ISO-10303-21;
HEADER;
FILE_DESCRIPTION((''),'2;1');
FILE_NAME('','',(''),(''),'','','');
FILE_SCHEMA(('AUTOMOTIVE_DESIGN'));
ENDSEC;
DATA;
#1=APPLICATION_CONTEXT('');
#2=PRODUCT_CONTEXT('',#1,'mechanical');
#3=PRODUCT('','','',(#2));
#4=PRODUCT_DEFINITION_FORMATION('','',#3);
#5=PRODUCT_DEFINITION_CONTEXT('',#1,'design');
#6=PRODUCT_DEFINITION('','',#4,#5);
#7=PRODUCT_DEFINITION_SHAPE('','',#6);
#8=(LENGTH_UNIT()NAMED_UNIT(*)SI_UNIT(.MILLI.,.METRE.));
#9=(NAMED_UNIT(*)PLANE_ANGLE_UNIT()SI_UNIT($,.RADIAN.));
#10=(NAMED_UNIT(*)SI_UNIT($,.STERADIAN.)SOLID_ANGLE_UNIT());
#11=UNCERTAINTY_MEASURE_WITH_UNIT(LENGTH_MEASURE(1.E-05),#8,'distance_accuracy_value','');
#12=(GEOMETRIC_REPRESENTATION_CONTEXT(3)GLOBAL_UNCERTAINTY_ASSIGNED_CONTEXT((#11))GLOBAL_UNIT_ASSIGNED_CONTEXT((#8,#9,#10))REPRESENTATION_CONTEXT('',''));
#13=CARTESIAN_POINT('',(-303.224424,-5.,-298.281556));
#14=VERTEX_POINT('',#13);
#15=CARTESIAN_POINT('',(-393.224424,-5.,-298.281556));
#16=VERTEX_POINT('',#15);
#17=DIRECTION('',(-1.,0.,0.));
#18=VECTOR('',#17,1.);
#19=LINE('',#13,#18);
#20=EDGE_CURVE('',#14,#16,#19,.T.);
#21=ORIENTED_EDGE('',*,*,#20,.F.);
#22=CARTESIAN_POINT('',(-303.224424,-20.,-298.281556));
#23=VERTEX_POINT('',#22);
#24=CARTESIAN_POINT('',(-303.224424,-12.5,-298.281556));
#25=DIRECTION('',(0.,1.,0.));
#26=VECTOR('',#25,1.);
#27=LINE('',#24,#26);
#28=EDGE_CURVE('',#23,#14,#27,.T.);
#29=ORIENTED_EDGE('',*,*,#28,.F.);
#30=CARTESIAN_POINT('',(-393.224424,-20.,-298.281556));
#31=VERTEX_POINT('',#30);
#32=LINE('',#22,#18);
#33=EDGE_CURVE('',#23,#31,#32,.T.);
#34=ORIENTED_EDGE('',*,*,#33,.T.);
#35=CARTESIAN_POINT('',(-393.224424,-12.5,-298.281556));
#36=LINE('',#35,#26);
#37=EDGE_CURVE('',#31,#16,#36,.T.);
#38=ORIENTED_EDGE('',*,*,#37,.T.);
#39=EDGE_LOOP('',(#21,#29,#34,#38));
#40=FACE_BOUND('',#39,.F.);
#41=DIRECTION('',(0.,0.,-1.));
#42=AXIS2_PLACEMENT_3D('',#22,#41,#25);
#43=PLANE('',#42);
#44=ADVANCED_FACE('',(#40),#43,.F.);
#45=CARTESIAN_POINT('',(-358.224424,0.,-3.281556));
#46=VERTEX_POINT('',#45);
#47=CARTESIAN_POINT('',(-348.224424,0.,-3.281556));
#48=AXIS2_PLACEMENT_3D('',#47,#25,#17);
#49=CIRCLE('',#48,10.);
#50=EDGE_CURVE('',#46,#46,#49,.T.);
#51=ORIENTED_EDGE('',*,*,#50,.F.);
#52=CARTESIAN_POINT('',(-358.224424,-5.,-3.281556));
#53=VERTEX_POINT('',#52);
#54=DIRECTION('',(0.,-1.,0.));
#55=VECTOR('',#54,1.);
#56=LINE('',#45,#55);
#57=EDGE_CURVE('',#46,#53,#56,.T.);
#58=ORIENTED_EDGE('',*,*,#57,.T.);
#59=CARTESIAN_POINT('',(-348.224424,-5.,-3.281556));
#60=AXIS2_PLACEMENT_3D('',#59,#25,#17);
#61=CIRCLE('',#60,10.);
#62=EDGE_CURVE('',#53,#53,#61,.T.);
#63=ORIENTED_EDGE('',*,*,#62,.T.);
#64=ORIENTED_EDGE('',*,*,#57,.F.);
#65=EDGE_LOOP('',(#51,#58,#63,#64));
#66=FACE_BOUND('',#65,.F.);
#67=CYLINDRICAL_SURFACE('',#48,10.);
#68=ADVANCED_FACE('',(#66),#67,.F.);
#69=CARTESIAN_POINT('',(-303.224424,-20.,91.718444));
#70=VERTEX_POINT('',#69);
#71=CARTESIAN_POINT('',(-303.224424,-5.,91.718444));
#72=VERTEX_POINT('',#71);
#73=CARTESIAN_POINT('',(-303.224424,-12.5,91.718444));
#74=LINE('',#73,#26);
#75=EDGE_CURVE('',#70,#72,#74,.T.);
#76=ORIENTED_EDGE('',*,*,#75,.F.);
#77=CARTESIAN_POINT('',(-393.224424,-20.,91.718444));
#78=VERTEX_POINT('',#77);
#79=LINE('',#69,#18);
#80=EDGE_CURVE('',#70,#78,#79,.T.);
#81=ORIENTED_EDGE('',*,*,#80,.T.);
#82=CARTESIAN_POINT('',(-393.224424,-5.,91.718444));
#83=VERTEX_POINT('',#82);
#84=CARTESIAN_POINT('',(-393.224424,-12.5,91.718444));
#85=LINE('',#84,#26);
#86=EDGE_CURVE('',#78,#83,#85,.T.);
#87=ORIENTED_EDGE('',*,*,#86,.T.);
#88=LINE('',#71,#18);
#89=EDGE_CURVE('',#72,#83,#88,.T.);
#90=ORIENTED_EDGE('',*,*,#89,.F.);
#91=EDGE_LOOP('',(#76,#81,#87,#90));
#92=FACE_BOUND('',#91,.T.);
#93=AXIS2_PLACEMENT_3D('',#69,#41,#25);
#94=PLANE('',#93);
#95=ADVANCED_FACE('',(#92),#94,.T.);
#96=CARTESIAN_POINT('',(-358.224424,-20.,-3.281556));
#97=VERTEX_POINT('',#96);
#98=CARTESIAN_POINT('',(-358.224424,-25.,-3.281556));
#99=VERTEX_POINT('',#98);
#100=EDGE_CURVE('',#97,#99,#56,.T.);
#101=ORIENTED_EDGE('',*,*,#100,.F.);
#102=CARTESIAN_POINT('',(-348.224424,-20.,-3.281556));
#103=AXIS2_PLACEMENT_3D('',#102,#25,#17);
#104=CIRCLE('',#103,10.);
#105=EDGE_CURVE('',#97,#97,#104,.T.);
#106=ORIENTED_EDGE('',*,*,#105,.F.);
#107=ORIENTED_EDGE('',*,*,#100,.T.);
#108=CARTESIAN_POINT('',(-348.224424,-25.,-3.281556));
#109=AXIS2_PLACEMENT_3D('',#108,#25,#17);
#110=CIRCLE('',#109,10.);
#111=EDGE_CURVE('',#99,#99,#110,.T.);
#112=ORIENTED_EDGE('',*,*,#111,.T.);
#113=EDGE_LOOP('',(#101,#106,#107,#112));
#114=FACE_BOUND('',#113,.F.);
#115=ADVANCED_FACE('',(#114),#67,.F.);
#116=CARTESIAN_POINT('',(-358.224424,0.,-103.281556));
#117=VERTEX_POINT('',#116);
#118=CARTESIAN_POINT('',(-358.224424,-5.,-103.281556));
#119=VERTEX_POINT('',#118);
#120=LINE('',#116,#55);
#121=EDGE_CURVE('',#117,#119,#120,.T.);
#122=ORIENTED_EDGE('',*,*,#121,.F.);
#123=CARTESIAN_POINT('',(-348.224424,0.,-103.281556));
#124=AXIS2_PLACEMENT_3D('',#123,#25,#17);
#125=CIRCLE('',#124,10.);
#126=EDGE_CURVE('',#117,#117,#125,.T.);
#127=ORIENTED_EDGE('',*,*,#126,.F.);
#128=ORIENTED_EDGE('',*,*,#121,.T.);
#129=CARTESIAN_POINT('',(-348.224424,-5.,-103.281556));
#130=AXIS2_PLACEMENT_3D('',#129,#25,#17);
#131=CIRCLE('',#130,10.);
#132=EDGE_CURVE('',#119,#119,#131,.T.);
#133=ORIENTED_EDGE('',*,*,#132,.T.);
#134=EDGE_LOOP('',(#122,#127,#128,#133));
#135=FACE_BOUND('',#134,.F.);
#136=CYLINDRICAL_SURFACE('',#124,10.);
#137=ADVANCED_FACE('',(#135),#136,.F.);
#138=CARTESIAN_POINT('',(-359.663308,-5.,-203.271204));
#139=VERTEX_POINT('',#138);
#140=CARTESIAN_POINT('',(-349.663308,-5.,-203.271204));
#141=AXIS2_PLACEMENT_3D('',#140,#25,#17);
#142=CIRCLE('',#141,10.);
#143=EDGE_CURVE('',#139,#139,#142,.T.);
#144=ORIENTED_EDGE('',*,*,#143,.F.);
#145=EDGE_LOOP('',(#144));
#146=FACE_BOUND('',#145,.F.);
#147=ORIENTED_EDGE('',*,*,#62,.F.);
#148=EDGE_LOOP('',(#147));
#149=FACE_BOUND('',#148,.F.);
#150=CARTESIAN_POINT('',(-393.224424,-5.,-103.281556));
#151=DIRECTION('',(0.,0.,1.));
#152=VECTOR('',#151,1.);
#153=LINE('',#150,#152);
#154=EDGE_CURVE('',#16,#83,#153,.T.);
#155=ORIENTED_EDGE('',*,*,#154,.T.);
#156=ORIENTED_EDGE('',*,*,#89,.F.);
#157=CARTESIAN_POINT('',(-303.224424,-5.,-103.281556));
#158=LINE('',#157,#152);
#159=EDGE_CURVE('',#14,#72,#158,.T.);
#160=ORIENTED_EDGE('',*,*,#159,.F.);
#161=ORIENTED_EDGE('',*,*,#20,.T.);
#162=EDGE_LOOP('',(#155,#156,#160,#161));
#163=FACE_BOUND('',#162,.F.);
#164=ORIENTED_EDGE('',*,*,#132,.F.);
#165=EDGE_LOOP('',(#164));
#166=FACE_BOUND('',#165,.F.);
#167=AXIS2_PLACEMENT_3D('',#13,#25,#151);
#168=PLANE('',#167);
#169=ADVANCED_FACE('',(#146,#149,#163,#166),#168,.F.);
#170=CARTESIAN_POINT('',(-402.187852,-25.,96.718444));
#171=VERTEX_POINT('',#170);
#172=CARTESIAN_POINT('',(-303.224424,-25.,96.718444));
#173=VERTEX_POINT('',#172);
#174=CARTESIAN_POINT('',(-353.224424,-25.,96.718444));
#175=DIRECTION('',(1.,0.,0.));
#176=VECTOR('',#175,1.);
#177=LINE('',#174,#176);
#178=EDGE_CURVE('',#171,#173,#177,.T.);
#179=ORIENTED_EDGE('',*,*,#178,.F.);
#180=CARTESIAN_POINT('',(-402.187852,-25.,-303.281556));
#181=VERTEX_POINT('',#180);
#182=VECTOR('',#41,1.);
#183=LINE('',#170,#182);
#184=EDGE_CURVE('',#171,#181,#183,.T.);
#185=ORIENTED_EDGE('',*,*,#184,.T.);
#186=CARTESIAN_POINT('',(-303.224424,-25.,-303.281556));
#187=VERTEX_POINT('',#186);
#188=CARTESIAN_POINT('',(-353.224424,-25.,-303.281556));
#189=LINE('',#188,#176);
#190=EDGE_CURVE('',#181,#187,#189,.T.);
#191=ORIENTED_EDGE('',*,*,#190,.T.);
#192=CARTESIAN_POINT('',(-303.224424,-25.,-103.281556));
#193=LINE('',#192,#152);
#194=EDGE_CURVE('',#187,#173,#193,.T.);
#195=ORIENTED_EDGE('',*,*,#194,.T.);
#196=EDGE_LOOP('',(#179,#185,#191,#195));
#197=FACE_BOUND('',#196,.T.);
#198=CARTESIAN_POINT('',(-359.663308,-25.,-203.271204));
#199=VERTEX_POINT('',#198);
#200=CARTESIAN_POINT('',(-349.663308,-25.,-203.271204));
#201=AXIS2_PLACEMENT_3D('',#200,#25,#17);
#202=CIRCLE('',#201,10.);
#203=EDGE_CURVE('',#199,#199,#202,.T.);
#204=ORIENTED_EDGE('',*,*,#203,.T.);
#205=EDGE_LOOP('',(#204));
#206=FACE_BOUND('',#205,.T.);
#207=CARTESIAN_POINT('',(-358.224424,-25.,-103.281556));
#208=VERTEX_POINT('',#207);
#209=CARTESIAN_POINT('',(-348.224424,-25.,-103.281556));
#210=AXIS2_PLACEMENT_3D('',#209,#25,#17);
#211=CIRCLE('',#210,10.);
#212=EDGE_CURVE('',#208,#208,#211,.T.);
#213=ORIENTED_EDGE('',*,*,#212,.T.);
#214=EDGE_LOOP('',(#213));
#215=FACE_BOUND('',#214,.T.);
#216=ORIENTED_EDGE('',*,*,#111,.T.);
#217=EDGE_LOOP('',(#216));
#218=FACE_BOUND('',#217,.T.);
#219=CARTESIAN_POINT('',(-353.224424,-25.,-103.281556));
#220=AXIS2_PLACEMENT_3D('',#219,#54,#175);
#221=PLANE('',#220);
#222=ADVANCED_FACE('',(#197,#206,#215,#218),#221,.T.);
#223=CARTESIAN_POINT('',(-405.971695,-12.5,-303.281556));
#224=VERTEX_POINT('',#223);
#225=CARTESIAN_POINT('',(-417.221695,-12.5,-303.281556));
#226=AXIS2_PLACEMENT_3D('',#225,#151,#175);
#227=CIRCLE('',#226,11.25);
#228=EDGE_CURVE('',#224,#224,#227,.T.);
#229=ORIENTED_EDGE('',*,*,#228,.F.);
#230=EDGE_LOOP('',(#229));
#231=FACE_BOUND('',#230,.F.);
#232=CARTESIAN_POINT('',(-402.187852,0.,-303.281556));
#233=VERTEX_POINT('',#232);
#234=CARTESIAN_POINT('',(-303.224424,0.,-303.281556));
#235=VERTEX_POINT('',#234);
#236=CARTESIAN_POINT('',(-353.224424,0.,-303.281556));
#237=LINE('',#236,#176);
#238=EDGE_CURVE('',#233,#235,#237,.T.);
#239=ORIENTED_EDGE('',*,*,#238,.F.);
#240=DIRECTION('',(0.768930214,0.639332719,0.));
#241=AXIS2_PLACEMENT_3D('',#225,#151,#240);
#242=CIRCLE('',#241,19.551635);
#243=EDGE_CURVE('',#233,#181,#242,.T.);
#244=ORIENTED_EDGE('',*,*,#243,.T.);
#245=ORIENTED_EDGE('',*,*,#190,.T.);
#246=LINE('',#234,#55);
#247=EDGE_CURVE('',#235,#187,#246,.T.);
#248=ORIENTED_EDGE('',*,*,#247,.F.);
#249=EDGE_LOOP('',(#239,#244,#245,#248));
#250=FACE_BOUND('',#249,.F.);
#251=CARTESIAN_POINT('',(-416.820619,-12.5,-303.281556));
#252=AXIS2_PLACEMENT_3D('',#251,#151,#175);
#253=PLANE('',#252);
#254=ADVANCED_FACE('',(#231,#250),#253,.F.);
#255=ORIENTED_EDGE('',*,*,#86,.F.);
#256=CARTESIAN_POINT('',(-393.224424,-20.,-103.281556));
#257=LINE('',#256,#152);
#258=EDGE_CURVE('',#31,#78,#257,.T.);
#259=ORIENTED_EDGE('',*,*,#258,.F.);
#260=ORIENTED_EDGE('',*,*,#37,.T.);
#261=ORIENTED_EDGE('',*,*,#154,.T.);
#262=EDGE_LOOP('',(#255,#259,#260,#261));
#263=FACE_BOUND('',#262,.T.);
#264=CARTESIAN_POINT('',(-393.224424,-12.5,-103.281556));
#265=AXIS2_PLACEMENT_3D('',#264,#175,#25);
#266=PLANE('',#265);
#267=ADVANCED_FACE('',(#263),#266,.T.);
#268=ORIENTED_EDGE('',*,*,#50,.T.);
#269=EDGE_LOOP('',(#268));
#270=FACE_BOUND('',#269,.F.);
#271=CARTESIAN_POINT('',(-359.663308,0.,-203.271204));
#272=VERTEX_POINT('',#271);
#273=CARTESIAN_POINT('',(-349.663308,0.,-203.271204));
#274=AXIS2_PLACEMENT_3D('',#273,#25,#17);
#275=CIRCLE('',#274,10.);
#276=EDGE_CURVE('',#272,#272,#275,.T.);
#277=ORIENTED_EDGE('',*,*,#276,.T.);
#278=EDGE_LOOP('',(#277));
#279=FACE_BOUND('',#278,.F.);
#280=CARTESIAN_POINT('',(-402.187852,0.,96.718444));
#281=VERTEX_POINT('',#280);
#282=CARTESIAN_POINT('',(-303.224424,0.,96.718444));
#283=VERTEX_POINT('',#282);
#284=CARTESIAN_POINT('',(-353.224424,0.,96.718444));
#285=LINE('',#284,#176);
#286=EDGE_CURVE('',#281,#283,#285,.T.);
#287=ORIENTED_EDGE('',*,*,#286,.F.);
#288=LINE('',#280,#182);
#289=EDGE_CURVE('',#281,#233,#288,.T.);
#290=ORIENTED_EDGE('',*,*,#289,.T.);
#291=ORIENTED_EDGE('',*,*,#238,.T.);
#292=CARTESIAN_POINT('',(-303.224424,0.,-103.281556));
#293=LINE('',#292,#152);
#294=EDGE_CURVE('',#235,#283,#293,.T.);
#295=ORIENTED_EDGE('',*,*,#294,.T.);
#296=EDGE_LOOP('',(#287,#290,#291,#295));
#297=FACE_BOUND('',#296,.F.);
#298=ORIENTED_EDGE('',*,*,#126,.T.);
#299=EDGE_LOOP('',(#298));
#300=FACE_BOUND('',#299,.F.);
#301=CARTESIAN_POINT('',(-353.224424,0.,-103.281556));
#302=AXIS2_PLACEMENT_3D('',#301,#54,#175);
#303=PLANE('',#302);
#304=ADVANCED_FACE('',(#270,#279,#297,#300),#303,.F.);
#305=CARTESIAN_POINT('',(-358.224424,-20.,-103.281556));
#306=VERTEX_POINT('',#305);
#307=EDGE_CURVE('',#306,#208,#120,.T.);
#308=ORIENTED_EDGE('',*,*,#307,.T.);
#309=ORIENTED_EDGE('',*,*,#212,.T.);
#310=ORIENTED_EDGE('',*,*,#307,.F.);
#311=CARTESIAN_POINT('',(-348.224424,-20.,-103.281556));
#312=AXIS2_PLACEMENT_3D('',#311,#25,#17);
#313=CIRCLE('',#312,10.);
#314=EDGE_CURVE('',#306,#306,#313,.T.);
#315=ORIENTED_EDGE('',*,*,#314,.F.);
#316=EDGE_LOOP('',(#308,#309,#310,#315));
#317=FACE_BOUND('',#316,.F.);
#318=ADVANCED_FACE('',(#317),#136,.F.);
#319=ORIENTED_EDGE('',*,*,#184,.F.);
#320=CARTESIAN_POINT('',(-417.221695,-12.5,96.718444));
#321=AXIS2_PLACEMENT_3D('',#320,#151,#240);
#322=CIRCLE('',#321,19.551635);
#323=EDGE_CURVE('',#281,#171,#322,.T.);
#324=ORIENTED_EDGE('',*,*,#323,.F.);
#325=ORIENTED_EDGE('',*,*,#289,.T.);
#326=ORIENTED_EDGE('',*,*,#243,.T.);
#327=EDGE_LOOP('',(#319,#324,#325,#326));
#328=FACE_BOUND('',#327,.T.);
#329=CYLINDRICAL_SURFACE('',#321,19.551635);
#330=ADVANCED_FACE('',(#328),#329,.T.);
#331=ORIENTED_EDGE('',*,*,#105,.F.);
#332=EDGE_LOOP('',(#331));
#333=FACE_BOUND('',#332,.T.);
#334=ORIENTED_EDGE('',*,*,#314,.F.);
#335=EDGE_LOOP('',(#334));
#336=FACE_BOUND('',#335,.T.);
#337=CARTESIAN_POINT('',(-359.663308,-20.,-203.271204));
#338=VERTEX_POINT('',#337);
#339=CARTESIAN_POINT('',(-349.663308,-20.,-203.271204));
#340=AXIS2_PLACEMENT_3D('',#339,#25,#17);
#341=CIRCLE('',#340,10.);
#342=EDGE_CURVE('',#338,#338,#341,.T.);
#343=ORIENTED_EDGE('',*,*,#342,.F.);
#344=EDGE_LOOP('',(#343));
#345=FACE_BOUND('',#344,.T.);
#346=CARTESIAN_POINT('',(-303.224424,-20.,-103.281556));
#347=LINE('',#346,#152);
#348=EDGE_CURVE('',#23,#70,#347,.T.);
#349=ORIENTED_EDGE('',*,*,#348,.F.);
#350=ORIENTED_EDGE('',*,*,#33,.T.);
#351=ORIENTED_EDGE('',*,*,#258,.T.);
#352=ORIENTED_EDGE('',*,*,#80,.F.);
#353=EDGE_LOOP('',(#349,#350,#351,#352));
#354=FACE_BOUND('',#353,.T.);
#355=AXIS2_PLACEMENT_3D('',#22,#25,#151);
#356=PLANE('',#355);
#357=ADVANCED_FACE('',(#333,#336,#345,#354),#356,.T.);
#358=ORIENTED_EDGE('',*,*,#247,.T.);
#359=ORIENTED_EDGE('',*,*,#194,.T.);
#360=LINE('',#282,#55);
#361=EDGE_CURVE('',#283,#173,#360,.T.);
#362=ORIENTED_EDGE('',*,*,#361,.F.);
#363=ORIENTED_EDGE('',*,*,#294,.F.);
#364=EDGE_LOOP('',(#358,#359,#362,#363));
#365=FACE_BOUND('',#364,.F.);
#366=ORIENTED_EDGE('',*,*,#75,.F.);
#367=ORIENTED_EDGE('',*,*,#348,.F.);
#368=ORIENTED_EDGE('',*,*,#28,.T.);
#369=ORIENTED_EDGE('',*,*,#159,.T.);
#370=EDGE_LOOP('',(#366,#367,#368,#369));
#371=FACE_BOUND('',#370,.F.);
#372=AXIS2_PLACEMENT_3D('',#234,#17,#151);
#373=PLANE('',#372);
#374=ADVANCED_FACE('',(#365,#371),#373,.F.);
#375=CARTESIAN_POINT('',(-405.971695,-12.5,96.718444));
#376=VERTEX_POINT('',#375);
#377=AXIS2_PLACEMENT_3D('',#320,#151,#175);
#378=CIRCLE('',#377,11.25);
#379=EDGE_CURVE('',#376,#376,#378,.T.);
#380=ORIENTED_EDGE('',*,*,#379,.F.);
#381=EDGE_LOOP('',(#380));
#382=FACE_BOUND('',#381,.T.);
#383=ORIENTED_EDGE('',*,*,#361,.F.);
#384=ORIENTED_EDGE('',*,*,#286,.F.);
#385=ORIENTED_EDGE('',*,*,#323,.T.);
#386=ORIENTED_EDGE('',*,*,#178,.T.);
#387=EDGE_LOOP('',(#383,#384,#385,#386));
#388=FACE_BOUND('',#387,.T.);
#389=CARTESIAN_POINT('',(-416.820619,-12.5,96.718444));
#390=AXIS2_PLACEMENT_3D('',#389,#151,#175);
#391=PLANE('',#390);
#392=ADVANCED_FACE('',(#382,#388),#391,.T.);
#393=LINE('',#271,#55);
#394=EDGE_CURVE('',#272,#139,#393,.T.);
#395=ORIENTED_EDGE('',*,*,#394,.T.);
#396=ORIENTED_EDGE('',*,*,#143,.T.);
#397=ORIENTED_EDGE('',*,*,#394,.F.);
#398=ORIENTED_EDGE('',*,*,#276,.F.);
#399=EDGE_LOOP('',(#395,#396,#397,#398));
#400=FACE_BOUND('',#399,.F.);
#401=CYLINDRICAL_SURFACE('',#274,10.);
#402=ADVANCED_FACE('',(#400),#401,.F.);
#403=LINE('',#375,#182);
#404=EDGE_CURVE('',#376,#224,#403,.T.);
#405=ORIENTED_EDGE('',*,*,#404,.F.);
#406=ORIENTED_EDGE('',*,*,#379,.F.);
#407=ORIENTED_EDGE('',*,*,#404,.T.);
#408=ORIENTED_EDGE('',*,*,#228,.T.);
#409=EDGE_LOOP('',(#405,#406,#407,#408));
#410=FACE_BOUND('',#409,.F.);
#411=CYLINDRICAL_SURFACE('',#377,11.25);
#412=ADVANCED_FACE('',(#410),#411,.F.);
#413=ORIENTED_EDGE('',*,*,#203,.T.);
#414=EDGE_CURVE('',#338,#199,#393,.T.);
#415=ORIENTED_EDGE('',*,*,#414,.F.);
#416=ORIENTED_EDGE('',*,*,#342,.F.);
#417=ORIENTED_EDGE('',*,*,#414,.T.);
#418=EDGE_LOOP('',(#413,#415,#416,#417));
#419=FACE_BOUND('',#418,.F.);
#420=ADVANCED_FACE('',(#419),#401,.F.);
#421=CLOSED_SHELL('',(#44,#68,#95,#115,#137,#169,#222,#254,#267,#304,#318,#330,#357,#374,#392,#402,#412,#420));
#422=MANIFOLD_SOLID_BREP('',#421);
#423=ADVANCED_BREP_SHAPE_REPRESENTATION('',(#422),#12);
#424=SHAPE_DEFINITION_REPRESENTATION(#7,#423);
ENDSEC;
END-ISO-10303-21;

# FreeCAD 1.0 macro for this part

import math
import FreeCAD as App
import Part
import Sketcher

doc = App.newDocument("Part")
body = doc.addObject("PartDesign::Body", "Body")

# Sketch on XZ plane
sketch1 = body.newObject("Sketcher::SketchObject", "Sketch")
sketch1.AttachmentSupport = (doc.getObject("XZ_Plane"), [""])
sketch1.MapMode = "FlatFace"
sketch1.addGeometry(Part.LineSegment(App.Vector(-403, 97, 0), App.Vector(-403, -303, 0)), False)
sketch1.addGeometry(Part.LineSegment(App.Vector(-403, -303, 0), App.Vector(-303, -303, 0)), False)
sketch1.addGeometry(Part.LineSegment(App.Vector(-303, -303, 0), App.Vector(-303, 97, 0)), False)
sketch1.addGeometry(Part.LineSegment(App.Vector(-303, 97, 0), App.Vector(-403, 97, 0)), False)
sketch1.addConstraint(Sketcher.Constraint("Coincident", 0, 2, 1, 1))
sketch1.addConstraint(Sketcher.Constraint("Coincident", 1, 2, 2, 1))
sketch1.addConstraint(Sketcher.Constraint("Coincident", 2, 2, 3, 1))
sketch1.addConstraint(Sketcher.Constraint("Coincident", 3, 2, 0, 1))
sketch1.addConstraint(Sketcher.Constraint("Vertical", 0))
sketch1.addConstraint(Sketcher.Constraint("Horizontal", 1))
sketch1.addConstraint(Sketcher.Constraint("Vertical", 2))
sketch1.addConstraint(Sketcher.Constraint("Horizontal", 3))
sketch1.addConstraint(Sketcher.Constraint("DistanceX", 1, 1, 1, 2, 100.0))
sketch1.addConstraint(Sketcher.Constraint("DistanceY", 0, 2, 0, 1, 400.0))
sketch1.addConstraint(Sketcher.Constraint("DistanceX", 0, 2, -1, 1, 403.224424))
sketch1.addConstraint(Sketcher.Constraint("DistanceY", 0, 2, -1, 1, 303.281556))
pad1 = body.newObject("PartDesign::Pad", "Pad")
pad1.Profile = sketch1
pad1.Length = 25

# Sketch on YZ plane
sketch2 = body.newObject("Sketcher::SketchObject", "Sketch001")
sketch2.AttachmentSupport = (doc.getObject("YZ_Plane"), [""])
sketch2.MapMode = "FlatFace"
sketch2.AttachmentOffset = App.Placement(App.Vector(0, 0, -303.224424), App.Rotation())
sketch2.addGeometry(Part.LineSegment(App.Vector(-20, 92, 0), App.Vector(-20, -298, 0)), False)
sketch2.addGeometry(Part.LineSegment(App.Vector(-20, -298, 0), App.Vector(-5, -298, 0)), False)
sketch2.addGeometry(Part.LineSegment(App.Vector(-5, -298, 0), App.Vector(-5, 92, 0)), False)
sketch2.addGeometry(Part.LineSegment(App.Vector(-5, 92, 0), App.Vector(-20, 92, 0)), False)
sketch2.addConstraint(Sketcher.Constraint("Coincident", 0, 2, 1, 1))
sketch2.addConstraint(Sketcher.Constraint("Coincident", 1, 2, 2, 1))
sketch2.addConstraint(Sketcher.Constraint("Coincident", 2, 2, 3, 1))
sketch2.addConstraint(Sketcher.Constraint("Coincident", 3, 2, 0, 1))
sketch2.addConstraint(Sketcher.Constraint("Vertical", 0))
sketch2.addConstraint(Sketcher.Constraint("Horizontal", 1))
sketch2.addConstraint(Sketcher.Constraint("Vertical", 2))
sketch2.addConstraint(Sketcher.Constraint("Horizontal", 3))
sketch2.addConstraint(Sketcher.Constraint("DistanceX", 1, 1, 1, 2, 15.0))
sketch2.addConstraint(Sketcher.Constraint("DistanceY", 0, 2, 0, 1, 390.0))
sketch2.addConstraint(Sketcher.Constraint("DistanceX", 0, 2, -1, 1, 20.0))
sketch2.addConstraint(Sketcher.Constraint("DistanceY", 0, 2, -1, 1, 298.281556))
pocket1 = body.newObject("PartDesign::Pocket", "Pocket")
pocket1.Profile = sketch2
pocket1.Length = 90

# Sketch on XZ plane
sketch3 = body.newObject("Sketcher::SketchObject", "Sketch002")
sketch3.AttachmentSupport = (doc.getObject("XZ_Plane"), [""])
sketch3.MapMode = "FlatFace"
sketch3.addGeometry(Part.Circle(App.Vector(-348, -3, 0), App.Vector(0, 0, 1), 10), False)
sketch3.addGeometry(Part.Circle(App.Vector(-348, -103, 0), App.Vector(0, 0, 1), 10), False)
sketch3.addGeometry(Part.Circle(App.Vector(-350, -203, 0), App.Vector(0, 0, 1), 10), False)
sketch3.addConstraint(Sketcher.Constraint("Equal", 0, 1))
sketch3.addConstraint(Sketcher.Constraint("Equal", 1, 2))
sketch3.addConstraint(Sketcher.Constraint("Vertical", 0, 3, 1, 3))
sketch3.addConstraint(Sketcher.Constraint("Diameter", 0, 20.0))
sketch3.addConstraint(Sketcher.Constraint("DistanceY", 1, 3, 0, 3, 100.0))
sketch3.addConstraint(Sketcher.Constraint("DistanceY", 2, 3, 1, 3, 99.989648))
sketch3.addConstraint(Sketcher.Constraint("DistanceX", 0, 3, -1, 1, 348.224424))
sketch3.addConstraint(Sketcher.Constraint("DistanceY", 0, 3, -1, 1, 3.281556))
sketch3.addConstraint(Sketcher.Constraint("DistanceX", 2, 3, -1, 1, 349.663308))
pocket2 = body.newObject("PartDesign::Pocket", "Pocket001")
pocket2.Profile = sketch3
pocket2.Length = 1000
pocket2.Reversed = True

# Sketch on XY plane
sketch4 = body.newObject("Sketcher::SketchObject", "Sketch003")
sketch4.AttachmentSupport = (doc.getObject("XY_Plane"), [""])
sketch4.MapMode = "FlatFace"
sketch4.AttachmentOffset = App.Placement(App.Vector(0, 0, 96.718444), App.Rotation())
sketch4.addGeometry(Part.ArcOfCircle(Part.Circle(App.Vector(-417, -12, 0), App.Vector(0, 0, 1), 20), math.radians(40), math.radians(320)), False)
sketch4.addGeometry(Part.ArcOfCircle(Part.Circle(App.Vector(-417, -13, 0), App.Vector(0, 0, 1), 20), math.radians(-40), math.radians(0)), False)
sketch4.addGeometry(Part.ArcOfCircle(Part.Circle(App.Vector(-417, -12, 0), App.Vector(0, 0, 1), 20), math.radians(0), math.radians(40)), False)
sketch4.addConstraint(Sketcher.Constraint("Tangent", 0, 2, 1, 1))
sketch4.addConstraint(Sketcher.Constraint("Tangent", 1, 2, 2, 1))
sketch4.addConstraint(Sketcher.Constraint("Tangent", 2, 2, 0, 1))
sketch4.addConstraint(Sketcher.Constraint("PointOnObject", 2, 2, -1))
sketch4.addConstraint(Sketcher.Constraint("Horizontal", 0, 3, 1, 2))
sketch4.addConstraint(Sketcher.Constraint("Vertical", 0, 2, 2, 2))
sketch4.addConstraint(Sketcher.Constraint("DistanceY", 0, 2, -1, 1, 25.0))
sketch4.addConstraint(Sketcher.Constraint("Radius", 1, 19.551629))
sketch4.addConstraint(Sketcher.Constraint("DistanceX", 1, 3, -1, 1, 417.221689))
pad2 = body.newObject("PartDesign::Pad", "Pad001")
pad2.Profile = sketch4
pad2.Length = 400
pad2.Reversed = True

# Sketch on XY plane
sketch5 = body.newObject("Sketcher::SketchObject", "Sketch004")
sketch5.AttachmentSupport = (doc.getObject("XY_Plane"), [""])
sketch5.MapMode = "FlatFace"
sketch5.AttachmentOffset = App.Placement(App.Vector(0, 0, 96.718444), App.Rotation())
sketch5.addGeometry(Part.Circle(App.Vector(-417, -12, 0), App.Vector(0, 0, 1), 11), False)
sketch5.addConstraint(Sketcher.Constraint("Diameter", 0, 22.5))
sketch5.addConstraint(Sketcher.Constraint("DistanceY", 0, 3, -1, 1, 12.5))
sketch5.addConstraint(Sketcher.Constraint("DistanceX", 0, 3, -1, 1, 417.221695))
pocket3 = body.newObject("PartDesign::Pocket", "Pocket002")
pocket3.Profile = sketch5
pocket3.Length = 500

doc.recompute()
